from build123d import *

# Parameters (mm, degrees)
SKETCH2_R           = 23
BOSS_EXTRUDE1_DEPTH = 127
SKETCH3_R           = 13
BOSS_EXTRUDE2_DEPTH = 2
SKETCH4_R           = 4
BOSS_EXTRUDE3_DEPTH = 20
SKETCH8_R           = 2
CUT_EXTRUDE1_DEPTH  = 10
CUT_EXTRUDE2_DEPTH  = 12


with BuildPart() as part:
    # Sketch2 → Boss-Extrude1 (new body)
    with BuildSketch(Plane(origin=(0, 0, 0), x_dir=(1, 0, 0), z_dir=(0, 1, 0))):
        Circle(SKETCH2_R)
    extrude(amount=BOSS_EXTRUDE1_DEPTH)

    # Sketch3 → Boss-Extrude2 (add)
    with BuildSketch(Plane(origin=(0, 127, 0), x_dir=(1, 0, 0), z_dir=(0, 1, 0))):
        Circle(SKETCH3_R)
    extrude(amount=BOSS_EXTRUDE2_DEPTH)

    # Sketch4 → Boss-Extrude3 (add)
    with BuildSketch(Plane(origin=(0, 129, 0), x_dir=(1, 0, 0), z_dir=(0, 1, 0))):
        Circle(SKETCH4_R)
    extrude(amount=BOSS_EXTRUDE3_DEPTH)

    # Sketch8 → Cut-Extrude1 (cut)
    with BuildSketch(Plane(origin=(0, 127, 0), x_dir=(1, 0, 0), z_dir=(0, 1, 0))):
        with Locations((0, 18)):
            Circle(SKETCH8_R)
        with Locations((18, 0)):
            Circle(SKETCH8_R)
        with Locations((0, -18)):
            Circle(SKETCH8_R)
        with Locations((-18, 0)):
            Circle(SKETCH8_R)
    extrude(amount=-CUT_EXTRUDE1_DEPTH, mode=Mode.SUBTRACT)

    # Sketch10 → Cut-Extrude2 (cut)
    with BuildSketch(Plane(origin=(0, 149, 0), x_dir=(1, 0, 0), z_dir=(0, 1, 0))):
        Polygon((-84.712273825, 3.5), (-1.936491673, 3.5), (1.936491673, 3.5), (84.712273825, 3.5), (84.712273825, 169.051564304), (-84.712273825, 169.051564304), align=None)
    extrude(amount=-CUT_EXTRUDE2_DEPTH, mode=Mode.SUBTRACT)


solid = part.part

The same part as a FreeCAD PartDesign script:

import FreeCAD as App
import Part
import Sketcher

V = App.Vector

doc = App.newDocument("Part")
params = doc.addObject("Spreadsheet::Sheet", "Params")
for row, (alias, value) in enumerate([
    ("sketch1_diameter", "46 mm"),
    ("pad1_length", "127 mm"),
    ("sketch2_diameter", "26 mm"),
    ("pad2_length", "2 mm"),
    ("sketch3_diameter", "8 mm"),
    ("pad3_length", "20 mm"),
    ("sketch4_diameter", "4 mm"),
    ("pocket1_length", "10 mm"),
    ("pocket2_length", "12 mm"),
], start=1):
    params.set(f"A{row}", alias)
    params.set(f"B{row}", "=" + value)
    params.setAlias(f"B{row}", alias)

body = doc.addObject("PartDesign::Body", "Body")

sketch1 = doc.addObject("Sketcher::SketchObject", "Sketch")
body.addObject(sketch1)
sketch1.AttachmentSupport = (doc.XZ_Plane, [""])
sketch1.MapMode = "FlatFace"
sketch1.addGeometry(Part.Circle(V(0, 0, 0), V(0, 0, 1), 23), False)
sketch1.addConstraint(Sketcher.Constraint("Coincident", 0, 3, -1, 1))
sketch1.addConstraint(Sketcher.Constraint("Diameter", 0, 46.0))
sketch1.setExpression("Constraints[1]", "Params.sketch1_diameter")
pad1 = doc.addObject("PartDesign::Pad", "Pad")
body.addObject(pad1)
pad1.Profile = sketch1
pad1.setExpression("Length", "Params.pad1_length")
pad1.Reversed = True

sketch2 = doc.addObject("Sketcher::SketchObject", "Sketch001")
body.addObject(sketch2)
sketch2.AttachmentSupport = (doc.XZ_Plane, [""])
sketch2.MapMode = "FlatFace"
sketch2.AttachmentOffset = App.Placement(V(0, 0, -127), App.Rotation())
sketch2.addGeometry(Part.Circle(V(0, 0, 0), V(0, 0, 1), 13), False)
sketch2.addConstraint(Sketcher.Constraint("Coincident", 0, 3, -1, 1))
sketch2.addConstraint(Sketcher.Constraint("Diameter", 0, 26.0))
sketch2.setExpression("Constraints[1]", "Params.sketch2_diameter")
pad2 = doc.addObject("PartDesign::Pad", "Pad001")
body.addObject(pad2)
pad2.Profile = sketch2
pad2.setExpression("Length", "Params.pad2_length")
pad2.Reversed = True

sketch3 = doc.addObject("Sketcher::SketchObject", "Sketch002")
body.addObject(sketch3)
sketch3.AttachmentSupport = (doc.XZ_Plane, [""])
sketch3.MapMode = "FlatFace"
sketch3.AttachmentOffset = App.Placement(V(0, 0, -129), App.Rotation())
sketch3.addGeometry(Part.Circle(V(0, 0, 0), V(0, 0, 1), 4), False)
sketch3.addConstraint(Sketcher.Constraint("Coincident", 0, 3, -1, 1))
sketch3.addConstraint(Sketcher.Constraint("Diameter", 0, 8.0))
sketch3.setExpression("Constraints[1]", "Params.sketch3_diameter")
pad3 = doc.addObject("PartDesign::Pad", "Pad002")
body.addObject(pad3)
pad3.Profile = sketch3
pad3.setExpression("Length", "Params.pad3_length")
pad3.Reversed = True

sketch4 = doc.addObject("Sketcher::SketchObject", "Sketch003")
body.addObject(sketch4)
sketch4.AttachmentSupport = (doc.XZ_Plane, [""])
sketch4.MapMode = "FlatFace"
sketch4.AttachmentOffset = App.Placement(V(0, 0, -127), App.Rotation())
sketch4.addGeometry(Part.Circle(V(0, -18, 0), V(0, 0, 1), 2), False)
sketch4.addGeometry(Part.Circle(V(18, 0, 0), V(0, 0, 1), 2), False)
sketch4.addGeometry(Part.Circle(V(0, 18, 0), V(0, 0, 1), 2), False)
sketch4.addGeometry(Part.Circle(V(-18, 0, 0), V(0, 0, 1), 2), False)
sketch4.addConstraint(Sketcher.Constraint("Equal", 0, 1))
sketch4.addConstraint(Sketcher.Constraint("Equal", 1, 2))
sketch4.addConstraint(Sketcher.Constraint("Equal", 2, 3))
sketch4.addConstraint(Sketcher.Constraint("Symmetric", 0, 3, 2, 3, -1, 1))
sketch4.addConstraint(Sketcher.Constraint("Symmetric", 1, 3, 3, 3, -1, 1))
sketch4.addConstraint(Sketcher.Constraint("PointOnObject", 0, 3, -2))
sketch4.addConstraint(Sketcher.Constraint("PointOnObject", 1, 3, -1))
sketch4.addConstraint(Sketcher.Constraint("Diameter", 0, 4.0))
sketch4.addConstraint(Sketcher.Constraint("DistanceY", 0, 3, -1, 1, 18.0))
sketch4.addConstraint(Sketcher.Constraint("DistanceX", -1, 1, 1, 3, 18.0))
sketch4.setExpression("Constraints[7]", "Params.sketch4_diameter")
pocket1 = doc.addObject("PartDesign::Pocket", "Pocket")
body.addObject(pocket1)
pocket1.Profile = sketch4
pocket1.setExpression("Length", "Params.pocket1_length")
pocket1.Reversed = True

sketch5 = doc.addObject("Sketcher::SketchObject", "Sketch004")
body.addObject(sketch5)
sketch5.AttachmentSupport = (doc.XZ_Plane, [""])
sketch5.MapMode = "FlatFace"
sketch5.AttachmentOffset = App.Placement(V(0, 0, -149), App.Rotation())
sketch5.addGeometry(Part.LineSegment(V(-85, -4, 0), V(85, -4, 0)), False)
sketch5.addGeometry(Part.LineSegment(V(85, -4, 0), V(85, -169, 0)), False)
sketch5.addGeometry(Part.LineSegment(V(85, -169, 0), V(-85, -169, 0)), False)
sketch5.addGeometry(Part.LineSegment(V(-85, -169, 0), V(-85, -4, 0)), False)
sketch5.addConstraint(Sketcher.Constraint("Coincident", 0, 2, 1, 1))
sketch5.addConstraint(Sketcher.Constraint("Coincident", 1, 2, 2, 1))
sketch5.addConstraint(Sketcher.Constraint("Coincident", 2, 2, 3, 1))
sketch5.addConstraint(Sketcher.Constraint("Coincident", 3, 2, 0, 1))
sketch5.addConstraint(Sketcher.Constraint("Horizontal", 0))
sketch5.addConstraint(Sketcher.Constraint("Vertical", 1))
sketch5.addConstraint(Sketcher.Constraint("Horizontal", 2))
sketch5.addConstraint(Sketcher.Constraint("Vertical", 3))
sketch5.addConstraint(Sketcher.Constraint("DistanceY", 0, 2, -1, 1, 3.5))
sketch5.addConstraint(Sketcher.Constraint("DistanceX", 0, 1, 0, 2, 169.424548))
sketch5.addConstraint(Sketcher.Constraint("DistanceY", 1, 2, 1, 1, 165.551564))
sketch5.addConstraint(Sketcher.Constraint("DistanceX", -1, 1, 0, 2, 84.712274))
pocket2 = doc.addObject("PartDesign::Pocket", "Pocket001")
body.addObject(pocket2)
pocket2.Profile = sketch5
pocket2.setExpression("Length", "Params.pocket2_length")
pocket2.Reversed = True

doc.recompute()
